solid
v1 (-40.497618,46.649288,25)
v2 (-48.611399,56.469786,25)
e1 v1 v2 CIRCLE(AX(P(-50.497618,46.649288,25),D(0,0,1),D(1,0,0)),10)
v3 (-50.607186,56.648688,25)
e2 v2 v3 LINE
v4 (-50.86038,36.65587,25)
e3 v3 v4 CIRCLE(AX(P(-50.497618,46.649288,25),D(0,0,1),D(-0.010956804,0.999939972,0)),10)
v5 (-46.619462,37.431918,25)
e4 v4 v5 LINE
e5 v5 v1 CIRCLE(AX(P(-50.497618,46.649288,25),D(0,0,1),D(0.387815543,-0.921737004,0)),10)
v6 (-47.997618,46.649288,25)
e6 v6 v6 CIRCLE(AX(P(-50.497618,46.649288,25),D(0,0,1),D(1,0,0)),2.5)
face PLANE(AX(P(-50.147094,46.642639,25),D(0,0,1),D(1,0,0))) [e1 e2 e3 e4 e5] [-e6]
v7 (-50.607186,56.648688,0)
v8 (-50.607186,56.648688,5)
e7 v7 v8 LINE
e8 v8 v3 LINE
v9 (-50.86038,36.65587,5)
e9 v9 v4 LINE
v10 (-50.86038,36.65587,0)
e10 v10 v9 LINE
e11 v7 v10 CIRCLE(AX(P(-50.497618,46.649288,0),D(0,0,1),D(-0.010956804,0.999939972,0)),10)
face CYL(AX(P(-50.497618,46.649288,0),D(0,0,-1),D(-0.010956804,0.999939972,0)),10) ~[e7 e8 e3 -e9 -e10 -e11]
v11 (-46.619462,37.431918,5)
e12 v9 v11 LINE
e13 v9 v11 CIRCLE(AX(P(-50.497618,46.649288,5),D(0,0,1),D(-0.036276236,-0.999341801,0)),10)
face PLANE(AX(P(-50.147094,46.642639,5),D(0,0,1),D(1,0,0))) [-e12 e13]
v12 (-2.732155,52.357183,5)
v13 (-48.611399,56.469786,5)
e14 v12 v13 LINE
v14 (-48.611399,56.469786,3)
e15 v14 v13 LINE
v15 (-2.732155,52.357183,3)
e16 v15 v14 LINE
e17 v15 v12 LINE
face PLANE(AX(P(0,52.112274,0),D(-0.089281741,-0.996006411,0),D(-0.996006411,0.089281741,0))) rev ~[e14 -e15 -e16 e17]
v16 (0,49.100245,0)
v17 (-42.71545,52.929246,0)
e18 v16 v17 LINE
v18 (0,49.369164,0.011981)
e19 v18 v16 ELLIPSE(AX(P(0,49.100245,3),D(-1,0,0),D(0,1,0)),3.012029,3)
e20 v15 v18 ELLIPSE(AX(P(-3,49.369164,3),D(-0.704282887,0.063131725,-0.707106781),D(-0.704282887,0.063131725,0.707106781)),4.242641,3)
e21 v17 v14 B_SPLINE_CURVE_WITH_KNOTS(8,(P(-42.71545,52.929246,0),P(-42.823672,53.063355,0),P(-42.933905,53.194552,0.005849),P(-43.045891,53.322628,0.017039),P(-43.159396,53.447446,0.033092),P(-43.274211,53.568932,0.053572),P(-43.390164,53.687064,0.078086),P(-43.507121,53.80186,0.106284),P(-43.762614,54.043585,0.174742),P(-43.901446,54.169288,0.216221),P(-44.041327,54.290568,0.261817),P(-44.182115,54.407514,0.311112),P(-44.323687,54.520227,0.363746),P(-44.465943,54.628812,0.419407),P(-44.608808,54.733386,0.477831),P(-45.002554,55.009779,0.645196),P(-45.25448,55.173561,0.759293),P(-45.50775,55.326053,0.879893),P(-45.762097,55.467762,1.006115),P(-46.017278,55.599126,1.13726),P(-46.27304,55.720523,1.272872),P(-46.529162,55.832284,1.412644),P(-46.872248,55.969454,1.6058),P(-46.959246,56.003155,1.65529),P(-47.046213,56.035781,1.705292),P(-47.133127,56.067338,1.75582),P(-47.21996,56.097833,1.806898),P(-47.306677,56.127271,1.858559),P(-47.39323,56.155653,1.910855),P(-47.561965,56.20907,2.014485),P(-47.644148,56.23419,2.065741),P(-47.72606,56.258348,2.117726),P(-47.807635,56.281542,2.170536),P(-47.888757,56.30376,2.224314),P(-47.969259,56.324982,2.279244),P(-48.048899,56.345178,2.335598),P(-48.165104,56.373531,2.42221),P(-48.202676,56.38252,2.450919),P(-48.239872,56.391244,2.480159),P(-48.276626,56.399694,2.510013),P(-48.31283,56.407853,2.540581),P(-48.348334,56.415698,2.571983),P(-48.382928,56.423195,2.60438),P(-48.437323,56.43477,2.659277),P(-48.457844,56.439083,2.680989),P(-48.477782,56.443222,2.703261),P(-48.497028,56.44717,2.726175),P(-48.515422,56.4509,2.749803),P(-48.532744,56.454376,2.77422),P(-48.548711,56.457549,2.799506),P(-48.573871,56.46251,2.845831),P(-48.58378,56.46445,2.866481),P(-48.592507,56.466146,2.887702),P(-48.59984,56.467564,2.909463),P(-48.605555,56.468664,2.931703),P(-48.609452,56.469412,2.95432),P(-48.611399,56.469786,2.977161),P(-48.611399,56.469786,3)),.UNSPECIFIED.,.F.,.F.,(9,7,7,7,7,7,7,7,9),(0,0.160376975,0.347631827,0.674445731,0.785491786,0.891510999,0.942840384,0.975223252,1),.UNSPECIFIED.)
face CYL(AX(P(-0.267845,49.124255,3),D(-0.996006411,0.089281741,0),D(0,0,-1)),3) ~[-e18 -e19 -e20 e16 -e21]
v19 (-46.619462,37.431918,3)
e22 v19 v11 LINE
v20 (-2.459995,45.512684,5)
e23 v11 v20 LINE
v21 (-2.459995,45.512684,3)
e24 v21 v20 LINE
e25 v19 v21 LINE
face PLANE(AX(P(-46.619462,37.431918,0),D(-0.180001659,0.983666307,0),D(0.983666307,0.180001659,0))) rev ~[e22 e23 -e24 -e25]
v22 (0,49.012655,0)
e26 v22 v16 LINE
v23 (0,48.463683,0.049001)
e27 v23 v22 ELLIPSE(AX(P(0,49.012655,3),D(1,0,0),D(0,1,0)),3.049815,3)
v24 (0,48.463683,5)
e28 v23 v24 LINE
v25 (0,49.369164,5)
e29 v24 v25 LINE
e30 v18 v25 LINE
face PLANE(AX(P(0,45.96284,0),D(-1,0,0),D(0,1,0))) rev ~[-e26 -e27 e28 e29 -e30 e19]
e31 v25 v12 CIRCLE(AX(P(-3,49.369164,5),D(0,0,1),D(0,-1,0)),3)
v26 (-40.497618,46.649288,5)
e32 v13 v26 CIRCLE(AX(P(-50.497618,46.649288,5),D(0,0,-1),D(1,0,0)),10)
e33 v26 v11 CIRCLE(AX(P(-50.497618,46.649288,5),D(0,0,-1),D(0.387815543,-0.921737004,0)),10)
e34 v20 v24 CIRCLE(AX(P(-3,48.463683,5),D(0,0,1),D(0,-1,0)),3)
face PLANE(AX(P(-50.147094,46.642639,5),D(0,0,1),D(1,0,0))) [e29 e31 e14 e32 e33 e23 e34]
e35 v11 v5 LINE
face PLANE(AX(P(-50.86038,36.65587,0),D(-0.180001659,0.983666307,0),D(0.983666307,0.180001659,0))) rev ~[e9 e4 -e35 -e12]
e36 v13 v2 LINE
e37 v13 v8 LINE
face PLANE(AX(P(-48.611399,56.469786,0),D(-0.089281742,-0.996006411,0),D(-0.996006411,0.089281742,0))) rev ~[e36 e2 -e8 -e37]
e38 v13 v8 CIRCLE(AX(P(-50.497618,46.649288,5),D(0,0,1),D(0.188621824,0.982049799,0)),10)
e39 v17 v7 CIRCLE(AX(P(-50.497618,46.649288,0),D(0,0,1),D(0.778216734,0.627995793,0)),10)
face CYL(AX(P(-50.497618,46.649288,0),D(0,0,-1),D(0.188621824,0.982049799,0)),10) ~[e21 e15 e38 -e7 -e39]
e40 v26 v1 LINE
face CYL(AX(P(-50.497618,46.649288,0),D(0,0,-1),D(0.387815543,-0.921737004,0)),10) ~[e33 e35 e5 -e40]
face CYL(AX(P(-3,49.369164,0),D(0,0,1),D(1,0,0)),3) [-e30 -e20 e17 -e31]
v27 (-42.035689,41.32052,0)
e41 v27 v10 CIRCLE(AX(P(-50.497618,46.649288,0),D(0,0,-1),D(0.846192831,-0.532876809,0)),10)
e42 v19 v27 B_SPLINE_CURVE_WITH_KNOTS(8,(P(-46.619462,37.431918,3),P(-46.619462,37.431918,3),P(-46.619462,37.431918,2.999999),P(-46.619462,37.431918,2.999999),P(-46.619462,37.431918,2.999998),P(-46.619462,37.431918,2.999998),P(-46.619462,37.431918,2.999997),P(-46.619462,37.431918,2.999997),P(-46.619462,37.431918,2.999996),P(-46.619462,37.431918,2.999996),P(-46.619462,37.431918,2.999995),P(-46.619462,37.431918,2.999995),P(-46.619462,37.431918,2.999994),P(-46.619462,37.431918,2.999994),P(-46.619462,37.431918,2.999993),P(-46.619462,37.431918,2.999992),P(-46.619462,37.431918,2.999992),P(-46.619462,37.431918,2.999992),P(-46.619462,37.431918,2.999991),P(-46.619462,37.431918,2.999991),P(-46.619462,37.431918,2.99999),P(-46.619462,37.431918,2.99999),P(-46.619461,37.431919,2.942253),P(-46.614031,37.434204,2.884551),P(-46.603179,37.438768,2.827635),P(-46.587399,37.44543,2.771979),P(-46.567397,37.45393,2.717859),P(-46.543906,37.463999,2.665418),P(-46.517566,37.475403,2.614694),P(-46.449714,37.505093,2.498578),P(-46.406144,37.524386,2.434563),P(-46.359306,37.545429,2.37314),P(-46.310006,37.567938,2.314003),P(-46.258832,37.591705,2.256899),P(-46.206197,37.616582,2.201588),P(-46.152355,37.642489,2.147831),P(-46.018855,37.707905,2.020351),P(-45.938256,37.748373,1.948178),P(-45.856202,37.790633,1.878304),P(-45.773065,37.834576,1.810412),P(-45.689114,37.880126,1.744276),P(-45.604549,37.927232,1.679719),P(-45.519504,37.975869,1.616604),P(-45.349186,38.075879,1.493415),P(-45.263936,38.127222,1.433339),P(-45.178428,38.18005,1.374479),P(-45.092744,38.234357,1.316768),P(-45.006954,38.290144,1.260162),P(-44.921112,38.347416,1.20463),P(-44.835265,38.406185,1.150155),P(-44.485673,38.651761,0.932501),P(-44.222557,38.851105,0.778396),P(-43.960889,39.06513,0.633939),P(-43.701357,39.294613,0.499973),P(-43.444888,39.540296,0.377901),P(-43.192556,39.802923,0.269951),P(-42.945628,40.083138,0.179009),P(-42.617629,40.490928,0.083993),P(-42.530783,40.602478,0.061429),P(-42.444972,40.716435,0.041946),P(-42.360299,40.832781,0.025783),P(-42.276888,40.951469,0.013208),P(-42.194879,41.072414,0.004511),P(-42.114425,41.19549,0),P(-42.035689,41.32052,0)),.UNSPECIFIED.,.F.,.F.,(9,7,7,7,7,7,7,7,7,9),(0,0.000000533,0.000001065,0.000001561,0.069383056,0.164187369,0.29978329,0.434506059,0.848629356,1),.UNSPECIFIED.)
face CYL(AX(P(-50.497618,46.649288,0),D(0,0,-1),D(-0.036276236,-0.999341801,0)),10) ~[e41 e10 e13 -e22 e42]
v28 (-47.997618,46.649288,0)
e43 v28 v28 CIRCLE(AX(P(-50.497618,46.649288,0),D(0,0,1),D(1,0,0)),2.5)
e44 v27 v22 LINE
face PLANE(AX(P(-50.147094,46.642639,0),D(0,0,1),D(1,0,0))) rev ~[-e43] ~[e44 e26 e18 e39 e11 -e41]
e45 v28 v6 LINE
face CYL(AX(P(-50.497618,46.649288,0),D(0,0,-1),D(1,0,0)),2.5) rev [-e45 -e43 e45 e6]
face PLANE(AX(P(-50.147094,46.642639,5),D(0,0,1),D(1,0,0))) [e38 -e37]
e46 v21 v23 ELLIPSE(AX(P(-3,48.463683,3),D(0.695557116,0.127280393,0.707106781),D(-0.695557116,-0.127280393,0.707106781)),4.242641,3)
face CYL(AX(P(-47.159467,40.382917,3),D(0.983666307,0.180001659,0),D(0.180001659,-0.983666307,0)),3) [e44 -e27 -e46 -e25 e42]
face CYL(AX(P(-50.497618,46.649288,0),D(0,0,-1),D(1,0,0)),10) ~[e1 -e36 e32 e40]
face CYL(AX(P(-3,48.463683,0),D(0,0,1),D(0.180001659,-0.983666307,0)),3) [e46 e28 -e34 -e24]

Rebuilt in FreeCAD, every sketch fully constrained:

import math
import FreeCAD as App
import Part
import Sketcher
from FreeCAD import Vector
Q = App.Units.Quantity


def edges_at(feature, points):
    """Names of the edges that pass closest to the given points."""
    edges = feature.Shape.Edges
    near = lambda p: min(range(len(edges)), key=lambda i: edges[i].distToShape(Part.Vertex(*p))[0])
    return sorted({f"Edge{near(p) + 1}" for p in points})

doc = App.newDocument("Part")
body = doc.addObject("PartDesign::Body", "Body")

# Sketch on XY plane
sketch1 = body.newObject("Sketcher::SketchObject", "Sketch")
sketch1.AttachmentSupport = (doc.getObject("XY_Plane"), [""])
sketch1.MapMode = "FlatFace"
sketch1.addGeometry(Part.LineSegment(Vector(-48.611399, 56.469786, 0), Vector(-50.607186, 56.648688, 0)), False)
sketch1.addGeometry(Part.ArcOfCircle(Part.Circle(Vector(-50.497618, 46.649288, 0), Vector(0, 0, 1), 10), math.radians(90.627791), math.radians(267.921069)), False)
sketch1.addGeometry(Part.LineSegment(Vector(-50.86038, 36.65587, 0), Vector(-46.619462, 37.431918, 0)), False)
sketch1.addGeometry(Part.ArcOfCircle(Part.Circle(Vector(-50.497618, 46.649288, 0), Vector(0, 0, 1), 10), math.radians(-67.181356), math.radians(0)), False)
sketch1.addGeometry(Part.ArcOfCircle(Part.Circle(Vector(-50.497618, 46.649288, 0), Vector(0, 0, 1), 10), math.radians(0), math.radians(79.127634)), False)
sketch1.addGeometry(Part.Circle(Vector(-50.497618, 46.649288, 0), Vector(0, 0, 1), 2.5), False)
sketch1.addConstraint(Sketcher.Constraint("Coincident", 0, 2, 1, 1))
sketch1.addConstraint(Sketcher.Constraint("Coincident", 1, 2, 2, 1))
sketch1.addConstraint(Sketcher.Constraint("Coincident", 2, 2, 3, 1))
sketch1.addConstraint(Sketcher.Constraint("Tangent", 3, 2, 4, 1))
sketch1.addConstraint(Sketcher.Constraint("Coincident", 4, 2, 0, 1))
sketch1.addConstraint(Sketcher.Constraint("Coincident", 3, 3, 1, 3))
sketch1.addConstraint(Sketcher.Constraint("Coincident", 5, 3, 1, 3))
sketch1.addConstraint(Sketcher.Constraint("Equal", 1, 3))
sketch1.addConstraint(Sketcher.Constraint("Equal", 3, 4))
sketch1.addConstraint(Sketcher.Constraint("Horizontal", 5, 3, 3, 2))
sketch1.addConstraint(Sketcher.Constraint("Diameter", 5, Q("5 mm")))
sketch1.addConstraint(Sketcher.Constraint("Radius", 1, Q("10 mm")))
sketch1.addConstraint(Sketcher.Constraint("DistanceX", 4, 2, -1, 1, Q("48.611399 mm")))
sketch1.addConstraint(Sketcher.Constraint("DistanceY", 1, 3, 0, 2, Q("9.9994 mm")))
sketch1.addConstraint(Sketcher.Constraint("DistanceY", 4, 2, 0, 2, Q("0.178902 mm")))
sketch1.addConstraint(Sketcher.Constraint("DistanceY", -1, 1, 1, 3, Q("46.649288 mm")))
sketch1.addConstraint(Sketcher.Constraint("DistanceX", 1, 2, -1, 1, Q("50.86038 mm")))
sketch1.addConstraint(Sketcher.Constraint("DistanceY", -1, 1, 2, 2, Q("37.431918 mm")))
pad1 = body.newObject("PartDesign::Pad", "Pad")
pad1.Profile = sketch1
pad1.Length = 25

# Sketch on XY plane
sketch2 = body.newObject("Sketcher::SketchObject", "Sketch001")
sketch2.AttachmentSupport = (doc.getObject("XY_Plane"), [""])
sketch2.MapMode = "FlatFace"
sketch2.addGeometry(Part.ArcOfCircle(Part.Circle(Vector(-50.497618, 46.649288, 0), Vector(0, 0, 1), 10), math.radians(79.127634), math.radians(90.627791)), False)
sketch2.addGeometry(Part.ArcOfCircle(Part.Circle(Vector(-50.497618, 46.649288, 0), Vector(0, 0, 1), 10), math.radians(90.627791), math.radians(267.921069)), False)
sketch2.addGeometry(Part.ArcOfCircle(Part.Circle(Vector(-50.497618, 46.649288, 0), Vector(0, 0, 1), 10), math.radians(-92.078931), math.radians(-67.181356)), False)
sketch2.addGeometry(Part.LineSegment(Vector(-46.619462, 37.431918, 0), Vector(0, 45.96284, 0)), False)
sketch2.addGeometry(Part.LineSegment(Vector(0, 45.96284, 0), Vector(0, 52.112274, 0)), False)
sketch2.addGeometry(Part.LineSegment(Vector(0, 52.112274, 0), Vector(-48.611399, 56.469786, 0)), False)
sketch2.addGeometry(Part.Circle(Vector(-50.497618, 46.649288, 0), Vector(0, 0, 1), 2.5), False)
sketch2.addConstraint(Sketcher.Constraint("Coincident", 0, 2, 1, 1))
sketch2.addConstraint(Sketcher.Constraint("Coincident", 1, 2, 2, 1))
sketch2.addConstraint(Sketcher.Constraint("Coincident", 2, 2, 3, 1))
sketch2.addConstraint(Sketcher.Constraint("Coincident", 3, 2, 4, 1))
sketch2.addConstraint(Sketcher.Constraint("Coincident", 4, 2, 5, 1))
sketch2.addConstraint(Sketcher.Constraint("Coincident", 5, 2, 0, 1))
sketch2.addConstraint(Sketcher.Constraint("Vertical", 4))
sketch2.addConstraint(Sketcher.Constraint("Coincident", 1, 3, 0, 3))
sketch2.addConstraint(Sketcher.Constraint("Coincident", 2, 3, 0, 3))
sketch2.addConstraint(Sketcher.Constraint("Coincident", 6, 3, 0, 3))
sketch2.addConstraint(Sketcher.Constraint("PointOnObject", 3, 2, -2))
sketch2.addConstraint(Sketcher.Constraint("Diameter", 6, Q("5 mm")))
sketch2.addConstraint(Sketcher.Constraint("Radius", 0, Q("10 mm")))
sketch2.addConstraint(Sketcher.Constraint("DistanceX", 5, 2, -1, 1, Q("48.611399 mm")))
sketch2.addConstraint(Sketcher.Constraint("DistanceY", 1, 3, 0, 2, Q("9.9994 mm")))
sketch2.addConstraint(Sketcher.Constraint("DistanceY", 5, 2, 0, 2, Q("0.178902 mm")))
sketch2.addConstraint(Sketcher.Constraint("Distance", 5, Q("48.806312 mm")))
sketch2.addConstraint(Sketcher.Constraint("DistanceY", 4, 1, 4, 2, Q("6.149434 mm")))
sketch2.addConstraint(Sketcher.Constraint("DistanceY", -1, 1, 0, 3, Q("46.649288 mm")))
sketch2.addConstraint(Sketcher.Constraint("DistanceX", 1, 2, -1, 1, Q("50.86038 mm")))
sketch2.addConstraint(Sketcher.Constraint("DistanceY", -1, 1, 2, 2, Q("37.431918 mm")))
pad2 = body.newObject("PartDesign::Pad", "Pad001")
pad2.Profile = sketch2
pad2.Length = 5
doc.recompute()

fillet = body.newObject("PartDesign::Fillet", "Fillet")
fillet.Base = (pad2, edges_at(pad2, [
    (0, 45.963, 2.5),
    (0, 52.112, 2.5),
    (-23.31, 41.697, 0),
    (-24.306, 54.291, 0),
]))
fillet.Radius = 3

doc.recompute()
